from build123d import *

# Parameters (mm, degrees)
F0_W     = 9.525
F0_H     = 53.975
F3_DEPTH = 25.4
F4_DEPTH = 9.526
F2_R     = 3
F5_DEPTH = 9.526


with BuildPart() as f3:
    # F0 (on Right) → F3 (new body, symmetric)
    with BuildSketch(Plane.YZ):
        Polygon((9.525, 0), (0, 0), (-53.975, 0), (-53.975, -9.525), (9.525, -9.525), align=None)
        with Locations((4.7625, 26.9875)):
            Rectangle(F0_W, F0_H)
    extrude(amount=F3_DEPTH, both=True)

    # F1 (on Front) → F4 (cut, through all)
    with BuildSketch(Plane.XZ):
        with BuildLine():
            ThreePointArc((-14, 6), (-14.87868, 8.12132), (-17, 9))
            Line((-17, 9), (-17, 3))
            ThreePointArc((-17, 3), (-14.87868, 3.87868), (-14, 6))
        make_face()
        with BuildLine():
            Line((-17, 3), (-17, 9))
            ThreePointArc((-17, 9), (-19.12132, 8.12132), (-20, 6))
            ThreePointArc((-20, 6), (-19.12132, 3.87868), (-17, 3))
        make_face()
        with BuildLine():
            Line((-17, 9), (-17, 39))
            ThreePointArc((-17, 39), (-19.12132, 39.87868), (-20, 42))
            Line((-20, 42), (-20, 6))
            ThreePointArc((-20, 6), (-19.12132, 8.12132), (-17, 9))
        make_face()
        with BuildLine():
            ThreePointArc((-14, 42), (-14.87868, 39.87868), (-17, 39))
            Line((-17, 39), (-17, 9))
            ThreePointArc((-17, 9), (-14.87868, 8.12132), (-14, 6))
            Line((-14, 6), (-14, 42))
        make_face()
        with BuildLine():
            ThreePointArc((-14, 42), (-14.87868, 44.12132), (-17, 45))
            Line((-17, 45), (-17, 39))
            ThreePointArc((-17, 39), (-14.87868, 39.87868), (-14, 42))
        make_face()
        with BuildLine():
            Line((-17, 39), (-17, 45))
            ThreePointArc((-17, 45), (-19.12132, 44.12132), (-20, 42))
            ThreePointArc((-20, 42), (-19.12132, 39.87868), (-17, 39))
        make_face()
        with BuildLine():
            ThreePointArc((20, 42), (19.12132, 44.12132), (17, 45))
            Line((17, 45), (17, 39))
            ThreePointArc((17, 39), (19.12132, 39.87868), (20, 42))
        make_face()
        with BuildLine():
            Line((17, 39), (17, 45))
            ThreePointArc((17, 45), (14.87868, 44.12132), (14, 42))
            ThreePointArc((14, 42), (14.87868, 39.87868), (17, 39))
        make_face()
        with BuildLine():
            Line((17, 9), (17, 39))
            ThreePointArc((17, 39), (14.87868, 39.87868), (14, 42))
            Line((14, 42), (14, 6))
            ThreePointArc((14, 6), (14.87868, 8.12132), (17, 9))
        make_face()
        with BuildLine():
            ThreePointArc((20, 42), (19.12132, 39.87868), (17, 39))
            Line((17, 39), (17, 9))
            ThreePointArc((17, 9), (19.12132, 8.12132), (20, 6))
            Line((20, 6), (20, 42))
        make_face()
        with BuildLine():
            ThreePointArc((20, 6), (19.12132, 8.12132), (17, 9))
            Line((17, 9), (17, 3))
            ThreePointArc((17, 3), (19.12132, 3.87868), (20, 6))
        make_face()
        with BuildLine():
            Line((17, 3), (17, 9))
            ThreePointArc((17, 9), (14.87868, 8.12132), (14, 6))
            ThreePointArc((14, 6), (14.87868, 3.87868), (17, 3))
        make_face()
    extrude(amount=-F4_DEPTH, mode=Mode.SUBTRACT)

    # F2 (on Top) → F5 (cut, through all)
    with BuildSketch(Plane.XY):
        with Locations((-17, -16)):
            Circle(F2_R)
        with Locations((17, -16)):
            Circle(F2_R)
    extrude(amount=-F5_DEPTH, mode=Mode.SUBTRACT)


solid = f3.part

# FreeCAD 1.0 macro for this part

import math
import FreeCAD as App
import Part
import Sketcher

V = App.Vector
Q = App.Units.Quantity

doc = App.newDocument("Part")
params = doc.addObject("Spreadsheet::Sheet", "Params")
for row, (alias, value) in enumerate([
    ("sketch1_width", "2.5 in"),
    ("sketch1_width2", "2.125 in"),
    ("pad1_length", "2 in"),
], start=1):
    params.set(f"A{row}", alias)
    params.set(f"B{row}", "=" + value)
    params.setAlias(f"B{row}", alias)

body = doc.addObject("PartDesign::Body", "Body")

# Sketch on YZ plane
sketch1 = body.newObject("Sketcher::SketchObject", "Sketch")
sketch1.AttachmentSupport = (doc.getObject("YZ_Plane"), [""])
sketch1.MapMode = "FlatFace"
sketch1.addGeometry(Part.LineSegment(V(0, 0, 0), V(-54, 0, 0)), False)
sketch1.addGeometry(Part.LineSegment(V(-54, 0, 0), V(-54, -10, 0)), False)
sketch1.addGeometry(Part.LineSegment(V(-54, -10, 0), V(10, -10, 0)), False)
sketch1.addGeometry(Part.LineSegment(V(10, -10, 0), V(10, 54, 0)), False)
sketch1.addGeometry(Part.LineSegment(V(10, 54, 0), V(0, 54, 0)), False)
sketch1.addGeometry(Part.LineSegment(V(0, 54, 0), V(0, 0, 0)), False)
sketch1.addConstraint(Sketcher.Constraint("Coincident", 0, 2, 1, 1))
sketch1.addConstraint(Sketcher.Constraint("Coincident", 1, 2, 2, 1))
sketch1.addConstraint(Sketcher.Constraint("Coincident", 2, 2, 3, 1))
sketch1.addConstraint(Sketcher.Constraint("Coincident", 3, 2, 4, 1))
sketch1.addConstraint(Sketcher.Constraint("Coincident", 4, 2, 5, 1))
sketch1.addConstraint(Sketcher.Constraint("Coincident", 5, 2, 0, 1))
sketch1.addConstraint(Sketcher.Constraint("Horizontal", 0))
sketch1.addConstraint(Sketcher.Constraint("Vertical", 1))
sketch1.addConstraint(Sketcher.Constraint("Horizontal", 2))
sketch1.addConstraint(Sketcher.Constraint("Vertical", 3))
sketch1.addConstraint(Sketcher.Constraint("Horizontal", 4))
sketch1.addConstraint(Sketcher.Constraint("Vertical", 5))
sketch1.addConstraint(Sketcher.Constraint("Coincident", 5, 2, -1, 1))
sketch1.addConstraint(Sketcher.Constraint("Equal", 4, 1))
sketch1.addConstraint(Sketcher.Constraint("Equal", 2, 3))
sketch1.addConstraint(Sketcher.Constraint("DistanceX", 2, 1, 2, 2, Q("2.5 in")))
sketch1.addConstraint(Sketcher.Constraint("DistanceX", 0, 2, 0, 1, Q("2.125 in")))
sketch1.setExpression("Constraints[15]", "Params.sketch1_width")
sketch1.setExpression("Constraints[16]", "Params.sketch1_width2")
pad1 = body.newObject("PartDesign::Pad", "Pad")
pad1.Profile = sketch1
pad1.setExpression("Length", "Params.pad1_length")
pad1.Midplane = True

# Sketch on XZ plane
sketch2 = body.newObject("Sketcher::SketchObject", "Sketch001")
sketch2.AttachmentSupport = (doc.getObject("XZ_Plane"), [""])
sketch2.MapMode = "FlatFace"
sketch2.addGeometry(Part.LineSegment(V(-20, 42, 0), V(-20, 6, 0)), False)
sketch2.addGeometry(Part.ArcOfCircle(Part.Circle(V(-17, 6, 0), V(0, 0, 1), 3), math.radians(-180), math.radians(-90)), False)
sketch2.addGeometry(Part.ArcOfCircle(Part.Circle(V(-17, 6, 0), V(0, 0, 1), 3), math.radians(-90), math.radians(0)), False)
sketch2.addGeometry(Part.LineSegment(V(-14, 6, 0), V(-14, 42, 0)), False)
sketch2.addGeometry(Part.ArcOfCircle(Part.Circle(V(-17, 42, 0), V(0, 0, 1), 3), math.radians(0), math.radians(90)), False)
sketch2.addGeometry(Part.ArcOfCircle(Part.Circle(V(-17, 42, 0), V(0, 0, 1), 3), math.radians(90), math.radians(180)), False)
sketch2.addGeometry(Part.ArcOfCircle(Part.Circle(V(17, 42, 0), V(0, 0, 1), 3), math.radians(0), math.radians(90)), False)
sketch2.addGeometry(Part.ArcOfCircle(Part.Circle(V(17, 42, 0), V(0, 0, 1), 3), math.radians(90), math.radians(180)), False)
sketch2.addGeometry(Part.LineSegment(V(14, 42, 0), V(14, 6, 0)), False)
sketch2.addGeometry(Part.ArcOfCircle(Part.Circle(V(17, 6, 0), V(0, 0, 1), 3), math.radians(-180), math.radians(-90)), False)
sketch2.addGeometry(Part.ArcOfCircle(Part.Circle(V(17, 6, 0), V(0, 0, 1), 3), math.radians(-90), math.radians(0)), False)
sketch2.addGeometry(Part.LineSegment(V(20, 6, 0), V(20, 42, 0)), False)
sketch2.addConstraint(Sketcher.Constraint("Tangent", 0, 2, 1, 1))
sketch2.addConstraint(Sketcher.Constraint("Tangent", 1, 2, 2, 1))
sketch2.addConstraint(Sketcher.Constraint("Tangent", 2, 2, 3, 1))
sketch2.addConstraint(Sketcher.Constraint("Tangent", 3, 2, 4, 1))
sketch2.addConstraint(Sketcher.Constraint("Tangent", 4, 2, 5, 1))
sketch2.addConstraint(Sketcher.Constraint("Tangent", 5, 2, 0, 1))
sketch2.addConstraint(Sketcher.Constraint("Tangent", 6, 2, 7, 1))
sketch2.addConstraint(Sketcher.Constraint("Tangent", 7, 2, 8, 1))
sketch2.addConstraint(Sketcher.Constraint("Tangent", 8, 2, 9, 1))
sketch2.addConstraint(Sketcher.Constraint("Tangent", 9, 2, 10, 1))
sketch2.addConstraint(Sketcher.Constraint("Tangent", 10, 2, 11, 1))
sketch2.addConstraint(Sketcher.Constraint("Tangent", 11, 2, 6, 1))
sketch2.addConstraint(Sketcher.Constraint("Vertical", 0))
sketch2.addConstraint(Sketcher.Constraint("Vertical", 3))
sketch2.addConstraint(Sketcher.Constraint("Vertical", 8))
sketch2.addConstraint(Sketcher.Constraint("Vertical", 11))
sketch2.addConstraint(Sketcher.Constraint("Equal", 1, 2))
sketch2.addConstraint(Sketcher.Constraint("Equal", 2, 4))
sketch2.addConstraint(Sketcher.Constraint("Equal", 5, 6))
sketch2.addConstraint(Sketcher.Constraint("Equal", 6, 7))
sketch2.addConstraint(Sketcher.Constraint("Equal", 7, 9))
sketch2.addConstraint(Sketcher.Constraint("Symmetric", 4, 3, 6, 3, -2))
sketch2.addConstraint(Sketcher.Constraint("Symmetric", 1, 2, 9, 2, -2))
sketch2.addConstraint(Sketcher.Constraint("Vertical", 5, 3, 1, 2))
sketch2.addConstraint(Sketcher.Constraint("Vertical", 1, 2, 4, 2))
sketch2.addConstraint(Sketcher.Constraint("Vertical", 10, 3, 6, 2))
sketch2.addConstraint(Sketcher.Constraint("Radius", 1, 3.000001))
sketch2.addConstraint(Sketcher.Constraint("DistanceY", 0, 2, 0, 1, 36.0))
sketch2.addConstraint(Sketcher.Constraint("DistanceX", 1, 3, -1, 1, 16.999999))
sketch2.addConstraint(Sketcher.Constraint("DistanceY", -1, 1, 1, 3, 6.000001))
pocket1 = body.newObject("PartDesign::Pocket", "Pocket")
pocket1.Profile = sketch2
pocket1.Type = "ThroughAll"

# Sketch on XY plane
sketch3 = body.newObject("Sketcher::SketchObject", "Sketch002")
sketch3.AttachmentSupport = (doc.getObject("XY_Plane"), [""])
sketch3.MapMode = "FlatFace"
sketch3.addGeometry(Part.Circle(V(-17, -16, 0), V(0, 0, 1), 3), False)
sketch3.addGeometry(Part.Circle(V(17, -16, 0), V(0, 0, 1), 3), False)
sketch3.addConstraint(Sketcher.Constraint("Equal", 0, 1))
sketch3.addConstraint(Sketcher.Constraint("Symmetric", 0, 3, 1, 3, -2))
sketch3.addConstraint(Sketcher.Constraint("Diameter", 0, 6.0))
sketch3.addConstraint(Sketcher.Constraint("DistanceX", 0, 3, -1, 1, 17.0))
sketch3.addConstraint(Sketcher.Constraint("DistanceY", 0, 3, -1, 1, 16.0))
pocket2 = body.newObject("PartDesign::Pocket", "Pocket001")
pocket2.Profile = sketch3
pocket2.Type = "ThroughAll"

doc.recompute()
